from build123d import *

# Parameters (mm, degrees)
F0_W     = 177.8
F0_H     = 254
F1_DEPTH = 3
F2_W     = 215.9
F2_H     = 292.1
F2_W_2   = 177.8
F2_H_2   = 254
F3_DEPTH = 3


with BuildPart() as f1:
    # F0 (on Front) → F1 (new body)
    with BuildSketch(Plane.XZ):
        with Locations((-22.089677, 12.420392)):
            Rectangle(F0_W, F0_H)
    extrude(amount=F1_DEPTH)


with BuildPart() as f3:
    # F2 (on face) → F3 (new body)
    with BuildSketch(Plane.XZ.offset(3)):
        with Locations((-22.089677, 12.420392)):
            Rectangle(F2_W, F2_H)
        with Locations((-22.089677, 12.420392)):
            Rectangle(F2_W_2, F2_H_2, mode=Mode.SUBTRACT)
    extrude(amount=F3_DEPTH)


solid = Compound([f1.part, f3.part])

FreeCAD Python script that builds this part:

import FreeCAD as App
import Part
import Sketcher

V = App.Vector
Q = App.Units.Quantity


def add_polygon(sketch, points):
    """Adds a closed chain of lines whose ends are joined by coincident constraints."""
    first, n = sketch.GeometryCount, len(points)
    for a, b in zip(points, points[1:] + points[:1]):
        sketch.addGeometry(Part.LineSegment(App.Vector(*a, 0), App.Vector(*b, 0)), False)
    for i in range(n):
        sketch.addConstraint(Sketcher.Constraint("Coincident", first + i, 2, first + (i + 1) % n, 1))

doc = App.newDocument("Part")
params = doc.addObject("Spreadsheet::Sheet", "Params")
for row, (alias, value) in enumerate([
    ("sketch1_width", "7 in"),
    ("sketch1_height", "10 in"),
    ("pad1_length", "3 mm"),
    ("sketch2_width", "7 in"),
    ("sketch2_height", "10 in"),
    ("sketch2_width2", "8.5 in"),
    ("sketch2_height2", "11.5 in"),
    ("pad2_length", "3 mm"),
], start=1):
    params.set(f"A{row}", alias)
    params.set(f"B{row}", "=" + value)
    params.setAlias(f"B{row}", alias)

body = doc.addObject("PartDesign::Body", "Body")

# Sketch on XZ plane
sketch1 = body.newObject("Sketcher::SketchObject", "Sketch")
sketch1.AttachmentSupport = (doc.getObject("XZ_Plane"), [""])
sketch1.MapMode = "FlatFace"
add_polygon(sketch1, [(-111, 139), (-111, -115), (67, -115), (67, 139)])  # lines 0-3
sketch1.addConstraint(Sketcher.Constraint("Vertical", 0))
sketch1.addConstraint(Sketcher.Constraint("Horizontal", 1))
sketch1.addConstraint(Sketcher.Constraint("Vertical", 2))
sketch1.addConstraint(Sketcher.Constraint("Horizontal", 3))
sketch1.addConstraint(Sketcher.Constraint("DistanceX", 1, 1, 1, 2, Q("7 in")))
sketch1.addConstraint(Sketcher.Constraint("DistanceY", 0, 2, 0, 1, Q("10 in")))
sketch1.addConstraint(Sketcher.Constraint("DistanceY", -1, 1, 2, 2, Q("139.420392 mm")))
sketch1.addConstraint(Sketcher.Constraint("DistanceX", 0, 2, -1, 1, Q("110.989677 mm")))
sketch1.setExpression("Constraints[8]", "Params.sketch1_width")
sketch1.setExpression("Constraints[9]", "Params.sketch1_height")
pad1 = body.newObject("PartDesign::Pad", "Pad")
pad1.Profile = sketch1
pad1.setExpression("Length", "Params.pad1_length")
body2 = doc.addObject("PartDesign::Body", "Body001")

# Sketch on XZ plane
sketch2 = body2.newObject("Sketcher::SketchObject", "Sketch001")
sketch2.AttachmentSupport = (doc.getObject("XZ_Plane001"), [""])
sketch2.MapMode = "FlatFace"
sketch2.AttachmentOffset = App.Placement(V(0, 0, 3), App.Rotation())
add_polygon(sketch2, [(-130, 158), (-130, -134), (86, -134), (86, 158)])  # lines 0-3
add_polygon(sketch2, [(67, -115), (-111, -115), (-111, 139), (67, 139)])  # lines 4-7
sketch2.addConstraint(Sketcher.Constraint("Vertical", 0))
sketch2.addConstraint(Sketcher.Constraint("Horizontal", 1))
sketch2.addConstraint(Sketcher.Constraint("Vertical", 2))
sketch2.addConstraint(Sketcher.Constraint("Horizontal", 3))
sketch2.addConstraint(Sketcher.Constraint("Horizontal", 4))
sketch2.addConstraint(Sketcher.Constraint("Vertical", 5))
sketch2.addConstraint(Sketcher.Constraint("Horizontal", 6))
sketch2.addConstraint(Sketcher.Constraint("Vertical", 7))
sketch2.addConstraint(Sketcher.Constraint("DistanceX", 4, 2, 4, 1, Q("7 in")))
sketch2.addConstraint(Sketcher.Constraint("DistanceY", 5, 1, 5, 2, Q("10 in")))
sketch2.addConstraint(Sketcher.Constraint("DistanceX", 1, 1, 1, 2, Q("8.5 in")))
sketch2.addConstraint(Sketcher.Constraint("DistanceY", 0, 2, 0, 1, Q("11.5 in")))
sketch2.addConstraint(Sketcher.Constraint("DistanceX", 0, 2, 4, 2, Q("0.75 in")))
sketch2.addConstraint(Sketcher.Constraint("DistanceY", 0, 2, 4, 2, Q("0.75 in")))
sketch2.addConstraint(Sketcher.Constraint("DistanceY", -1, 1, 2, 2, Q("158.470392 mm")))
sketch2.addConstraint(Sketcher.Constraint("DistanceX", 0, 2, -1, 1, Q("130.039677 mm")))
sketch2.setExpression("Constraints[16]", "Params.sketch2_width")
sketch2.setExpression("Constraints[17]", "Params.sketch2_height")
sketch2.setExpression("Constraints[18]", "Params.sketch2_width2")
sketch2.setExpression("Constraints[19]", "Params.sketch2_height2")
pad2 = body2.newObject("PartDesign::Pad", "Pad001")
pad2.Profile = sketch2
pad2.setExpression("Length", "Params.pad2_length")

doc.recompute()
